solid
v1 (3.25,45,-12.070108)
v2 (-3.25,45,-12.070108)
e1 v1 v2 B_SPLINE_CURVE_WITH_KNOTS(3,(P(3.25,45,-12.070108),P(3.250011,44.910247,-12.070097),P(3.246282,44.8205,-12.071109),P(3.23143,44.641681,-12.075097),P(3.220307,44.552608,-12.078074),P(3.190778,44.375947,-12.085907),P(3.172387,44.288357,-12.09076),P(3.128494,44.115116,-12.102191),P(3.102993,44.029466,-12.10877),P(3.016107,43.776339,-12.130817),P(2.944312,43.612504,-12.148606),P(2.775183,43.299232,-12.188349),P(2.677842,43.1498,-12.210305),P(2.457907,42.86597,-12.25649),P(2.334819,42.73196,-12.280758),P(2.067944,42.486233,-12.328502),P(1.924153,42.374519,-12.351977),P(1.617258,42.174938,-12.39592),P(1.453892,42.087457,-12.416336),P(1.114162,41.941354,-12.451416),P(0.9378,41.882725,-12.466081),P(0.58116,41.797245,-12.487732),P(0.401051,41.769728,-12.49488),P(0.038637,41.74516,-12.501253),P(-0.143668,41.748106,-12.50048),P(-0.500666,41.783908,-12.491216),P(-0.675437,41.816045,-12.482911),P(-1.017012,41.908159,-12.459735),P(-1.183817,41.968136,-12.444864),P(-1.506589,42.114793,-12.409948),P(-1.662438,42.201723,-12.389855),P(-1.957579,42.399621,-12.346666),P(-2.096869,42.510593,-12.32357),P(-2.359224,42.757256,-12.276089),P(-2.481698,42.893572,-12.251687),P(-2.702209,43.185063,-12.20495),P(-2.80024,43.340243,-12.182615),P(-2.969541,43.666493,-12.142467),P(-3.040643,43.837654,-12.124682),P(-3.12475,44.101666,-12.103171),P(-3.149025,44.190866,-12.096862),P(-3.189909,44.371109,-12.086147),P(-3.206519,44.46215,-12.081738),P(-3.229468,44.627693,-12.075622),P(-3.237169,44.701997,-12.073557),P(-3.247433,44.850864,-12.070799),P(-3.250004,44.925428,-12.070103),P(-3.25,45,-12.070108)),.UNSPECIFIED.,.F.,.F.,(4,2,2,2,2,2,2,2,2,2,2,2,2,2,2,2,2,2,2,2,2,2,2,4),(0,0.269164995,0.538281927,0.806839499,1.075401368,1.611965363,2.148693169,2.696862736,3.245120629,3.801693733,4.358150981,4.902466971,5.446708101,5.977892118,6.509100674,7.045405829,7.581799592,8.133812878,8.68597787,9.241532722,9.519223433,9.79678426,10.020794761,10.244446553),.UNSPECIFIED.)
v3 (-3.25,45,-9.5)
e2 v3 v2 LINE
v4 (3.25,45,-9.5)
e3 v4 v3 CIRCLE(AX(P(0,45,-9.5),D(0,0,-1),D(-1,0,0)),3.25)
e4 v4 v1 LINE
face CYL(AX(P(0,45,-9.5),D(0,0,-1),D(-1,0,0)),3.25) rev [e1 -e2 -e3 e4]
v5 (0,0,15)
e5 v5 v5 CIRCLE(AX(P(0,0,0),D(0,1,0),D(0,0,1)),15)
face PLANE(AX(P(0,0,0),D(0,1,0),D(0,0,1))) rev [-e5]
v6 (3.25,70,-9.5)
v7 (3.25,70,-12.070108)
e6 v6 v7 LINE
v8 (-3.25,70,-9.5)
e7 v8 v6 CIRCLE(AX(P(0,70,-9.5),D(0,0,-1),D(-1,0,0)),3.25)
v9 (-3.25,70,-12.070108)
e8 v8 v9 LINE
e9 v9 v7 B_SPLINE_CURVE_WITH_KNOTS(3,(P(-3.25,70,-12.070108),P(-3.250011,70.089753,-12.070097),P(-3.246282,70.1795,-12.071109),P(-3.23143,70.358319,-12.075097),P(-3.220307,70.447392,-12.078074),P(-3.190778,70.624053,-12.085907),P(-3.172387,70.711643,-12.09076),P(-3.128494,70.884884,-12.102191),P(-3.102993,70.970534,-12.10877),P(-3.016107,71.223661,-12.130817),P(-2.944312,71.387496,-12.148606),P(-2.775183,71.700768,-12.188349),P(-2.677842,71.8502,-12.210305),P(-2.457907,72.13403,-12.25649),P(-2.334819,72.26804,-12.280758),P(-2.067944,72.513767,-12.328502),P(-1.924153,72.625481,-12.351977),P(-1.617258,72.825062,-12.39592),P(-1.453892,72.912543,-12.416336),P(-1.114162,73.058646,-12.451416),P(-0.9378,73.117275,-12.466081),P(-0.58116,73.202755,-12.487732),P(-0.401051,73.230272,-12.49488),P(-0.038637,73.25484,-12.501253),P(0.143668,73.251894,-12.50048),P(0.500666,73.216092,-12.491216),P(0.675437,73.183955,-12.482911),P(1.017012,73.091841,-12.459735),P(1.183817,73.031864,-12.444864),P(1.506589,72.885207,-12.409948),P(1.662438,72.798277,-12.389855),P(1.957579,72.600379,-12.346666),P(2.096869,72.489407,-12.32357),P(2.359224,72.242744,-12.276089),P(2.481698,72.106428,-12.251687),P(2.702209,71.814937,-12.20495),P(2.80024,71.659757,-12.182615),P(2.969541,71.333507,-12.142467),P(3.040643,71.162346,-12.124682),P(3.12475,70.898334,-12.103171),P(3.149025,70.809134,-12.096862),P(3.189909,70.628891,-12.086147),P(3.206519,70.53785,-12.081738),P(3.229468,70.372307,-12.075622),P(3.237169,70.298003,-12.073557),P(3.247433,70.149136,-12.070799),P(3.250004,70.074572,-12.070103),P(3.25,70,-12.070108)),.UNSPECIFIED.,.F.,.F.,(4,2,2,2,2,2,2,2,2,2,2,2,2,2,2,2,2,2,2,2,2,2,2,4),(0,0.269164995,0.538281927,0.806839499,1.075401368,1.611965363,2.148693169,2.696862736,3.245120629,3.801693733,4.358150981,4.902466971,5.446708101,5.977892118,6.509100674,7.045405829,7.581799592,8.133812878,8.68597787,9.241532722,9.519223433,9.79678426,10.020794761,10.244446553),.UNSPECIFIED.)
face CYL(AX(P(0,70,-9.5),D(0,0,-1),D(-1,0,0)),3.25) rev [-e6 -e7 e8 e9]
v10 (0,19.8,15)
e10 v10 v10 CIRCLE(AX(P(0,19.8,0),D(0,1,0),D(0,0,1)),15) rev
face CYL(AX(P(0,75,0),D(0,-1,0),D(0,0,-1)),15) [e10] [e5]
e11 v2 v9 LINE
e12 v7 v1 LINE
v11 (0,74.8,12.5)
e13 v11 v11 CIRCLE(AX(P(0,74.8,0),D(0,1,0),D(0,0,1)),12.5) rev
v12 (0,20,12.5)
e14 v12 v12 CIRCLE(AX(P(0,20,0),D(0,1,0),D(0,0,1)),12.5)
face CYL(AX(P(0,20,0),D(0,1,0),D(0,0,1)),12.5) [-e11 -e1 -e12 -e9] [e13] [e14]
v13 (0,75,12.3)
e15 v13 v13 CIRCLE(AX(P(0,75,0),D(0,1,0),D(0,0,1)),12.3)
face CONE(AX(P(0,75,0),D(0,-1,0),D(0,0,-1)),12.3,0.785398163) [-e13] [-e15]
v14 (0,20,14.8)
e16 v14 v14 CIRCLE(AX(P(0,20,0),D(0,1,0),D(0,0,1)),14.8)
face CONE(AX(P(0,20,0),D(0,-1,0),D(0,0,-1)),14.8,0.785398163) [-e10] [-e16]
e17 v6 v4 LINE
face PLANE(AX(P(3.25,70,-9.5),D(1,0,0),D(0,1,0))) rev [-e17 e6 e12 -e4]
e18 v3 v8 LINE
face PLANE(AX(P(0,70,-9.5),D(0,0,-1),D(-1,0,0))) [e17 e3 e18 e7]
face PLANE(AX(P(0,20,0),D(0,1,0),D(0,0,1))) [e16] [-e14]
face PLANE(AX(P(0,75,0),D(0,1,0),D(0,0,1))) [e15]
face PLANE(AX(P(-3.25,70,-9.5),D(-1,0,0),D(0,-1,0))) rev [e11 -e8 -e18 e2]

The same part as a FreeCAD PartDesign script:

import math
import FreeCAD as App
import Part
import Sketcher
from FreeCAD import Vector


def edges_at(feature, points):
    """Names of the edges that pass closest to the given points."""
    edges = feature.Shape.Edges
    near = lambda p: min(range(len(edges)), key=lambda i: edges[i].distToShape(Part.Vertex(*p))[0])
    return sorted({f"Edge{near(p) + 1}" for p in points})

doc = App.newDocument("Part")
body = doc.addObject("PartDesign::Body", "Body")

# Sketch on XZ plane
sketch1 = doc.addObject("Sketcher::SketchObject", "Sketch")
body.addObject(sketch1)
sketch1.AttachmentSupport = (doc.XZ_Plane, [""])
sketch1.MapMode = "FlatFace"
sketch1.addGeometry(Part.Circle(Vector(0, 0, 0), Vector(0, 0, 1), 15), False)
sketch1.addConstraint([
    Sketcher.Constraint("Coincident", 0, 3, -1, 1),
    Sketcher.Constraint("Diameter", 0, 30.0),
])
pad1 = doc.addObject("PartDesign::Pad", "Pad")
body.addObject(pad1)
pad1.Profile = sketch1
pad1.Length = 75
pad1.Reversed = True

# Sketch on XZ plane
sketch2 = doc.addObject("Sketcher::SketchObject", "Sketch001")
body.addObject(sketch2)
sketch2.AttachmentSupport = (doc.XZ_Plane, [""])
sketch2.MapMode = "FlatFace"
sketch2.AttachmentOffset = App.Placement(Vector(0, 0, -20), App.Rotation())
sketch2.addGeometry([
    Part.Circle(Vector(0, 0, 0), Vector(0, 0, 1), 15),
    Part.Circle(Vector(0, 0, 0), Vector(0, 0, 1), 12),
], False)
sketch2.addConstraint([
    Sketcher.Constraint("Coincident", 0, 3, -1, 1),
    Sketcher.Constraint("Coincident", 1, 3, -1, 1),
    Sketcher.Constraint("Diameter", 0, 30.0),
    Sketcher.Constraint("Diameter", 1, 25.0),
])
pocket1 = doc.addObject("PartDesign::Pocket", "Pocket")
body.addObject(pocket1)
pocket1.Profile = sketch2
pocket1.Length = 55
doc.recompute()

chamfer = doc.addObject("PartDesign::Chamfer", "Chamfer")
body.addObject(chamfer)
chamfer.Base = (pocket1, edges_at(pocket1, [(0, 20, -15)]))
chamfer.Size = 0.2
doc.recompute()

chamfer2 = doc.addObject("PartDesign::Chamfer", "Chamfer001")
body.addObject(chamfer2)
chamfer2.Base = (chamfer, edges_at(chamfer, [(0, 75, -12.5)]))
chamfer2.Size = 0.2

# Sketch on XY plane
sketch3 = doc.addObject("Sketcher::SketchObject", "Sketch002")
body.addObject(sketch3)
sketch3.AttachmentSupport = (doc.XY_Plane, [""])
sketch3.MapMode = "FlatFace"
sketch3.AttachmentOffset = App.Placement(Vector(0, 0, -12.5), App.Rotation())
sketch3.addGeometry([
    Part.LineSegment(Vector(-3.2, 45, 0), Vector(-3.2, 70, 0)),
    Part.ArcOfCircle(Part.Circle(Vector(0, 70, 0), Vector(0, 0, 1), 3.2), math.radians(0), math.radians(180)),
    Part.LineSegment(Vector(3.2, 70, 0), Vector(3.2, 45, 0)),
    Part.ArcOfCircle(Part.Circle(Vector(0, 45, 0), Vector(0, 0, 1), 3.2), math.radians(180), math.radians(360)),
], False)
sketch3.addConstraint([
    Sketcher.Constraint("Tangent", 0, 2, 1, 2),
    Sketcher.Constraint("Tangent", 1, 1, 2, 1),
    Sketcher.Constraint("Tangent", 2, 2, 3, 2),
    Sketcher.Constraint("Tangent", 3, 1, 0, 1),
    Sketcher.Constraint("Vertical", 0),
    Sketcher.Constraint("Vertical", 2),
    Sketcher.Constraint("PointOnObject", 1, 3, -2),
    Sketcher.Constraint("DistanceY", 0, 1, 0, 2, 25.0),
    Sketcher.Constraint("Radius", 1, 3.25),
    Sketcher.Constraint("DistanceY", -1, 1, 1, 3, 70.0),
])
pocket2 = doc.addObject("PartDesign::Pocket", "Pocket001")
body.addObject(pocket2)
pocket2.Profile = sketch3
pocket2.Length = 3
pocket2.Reversed = True

doc.recompute()
